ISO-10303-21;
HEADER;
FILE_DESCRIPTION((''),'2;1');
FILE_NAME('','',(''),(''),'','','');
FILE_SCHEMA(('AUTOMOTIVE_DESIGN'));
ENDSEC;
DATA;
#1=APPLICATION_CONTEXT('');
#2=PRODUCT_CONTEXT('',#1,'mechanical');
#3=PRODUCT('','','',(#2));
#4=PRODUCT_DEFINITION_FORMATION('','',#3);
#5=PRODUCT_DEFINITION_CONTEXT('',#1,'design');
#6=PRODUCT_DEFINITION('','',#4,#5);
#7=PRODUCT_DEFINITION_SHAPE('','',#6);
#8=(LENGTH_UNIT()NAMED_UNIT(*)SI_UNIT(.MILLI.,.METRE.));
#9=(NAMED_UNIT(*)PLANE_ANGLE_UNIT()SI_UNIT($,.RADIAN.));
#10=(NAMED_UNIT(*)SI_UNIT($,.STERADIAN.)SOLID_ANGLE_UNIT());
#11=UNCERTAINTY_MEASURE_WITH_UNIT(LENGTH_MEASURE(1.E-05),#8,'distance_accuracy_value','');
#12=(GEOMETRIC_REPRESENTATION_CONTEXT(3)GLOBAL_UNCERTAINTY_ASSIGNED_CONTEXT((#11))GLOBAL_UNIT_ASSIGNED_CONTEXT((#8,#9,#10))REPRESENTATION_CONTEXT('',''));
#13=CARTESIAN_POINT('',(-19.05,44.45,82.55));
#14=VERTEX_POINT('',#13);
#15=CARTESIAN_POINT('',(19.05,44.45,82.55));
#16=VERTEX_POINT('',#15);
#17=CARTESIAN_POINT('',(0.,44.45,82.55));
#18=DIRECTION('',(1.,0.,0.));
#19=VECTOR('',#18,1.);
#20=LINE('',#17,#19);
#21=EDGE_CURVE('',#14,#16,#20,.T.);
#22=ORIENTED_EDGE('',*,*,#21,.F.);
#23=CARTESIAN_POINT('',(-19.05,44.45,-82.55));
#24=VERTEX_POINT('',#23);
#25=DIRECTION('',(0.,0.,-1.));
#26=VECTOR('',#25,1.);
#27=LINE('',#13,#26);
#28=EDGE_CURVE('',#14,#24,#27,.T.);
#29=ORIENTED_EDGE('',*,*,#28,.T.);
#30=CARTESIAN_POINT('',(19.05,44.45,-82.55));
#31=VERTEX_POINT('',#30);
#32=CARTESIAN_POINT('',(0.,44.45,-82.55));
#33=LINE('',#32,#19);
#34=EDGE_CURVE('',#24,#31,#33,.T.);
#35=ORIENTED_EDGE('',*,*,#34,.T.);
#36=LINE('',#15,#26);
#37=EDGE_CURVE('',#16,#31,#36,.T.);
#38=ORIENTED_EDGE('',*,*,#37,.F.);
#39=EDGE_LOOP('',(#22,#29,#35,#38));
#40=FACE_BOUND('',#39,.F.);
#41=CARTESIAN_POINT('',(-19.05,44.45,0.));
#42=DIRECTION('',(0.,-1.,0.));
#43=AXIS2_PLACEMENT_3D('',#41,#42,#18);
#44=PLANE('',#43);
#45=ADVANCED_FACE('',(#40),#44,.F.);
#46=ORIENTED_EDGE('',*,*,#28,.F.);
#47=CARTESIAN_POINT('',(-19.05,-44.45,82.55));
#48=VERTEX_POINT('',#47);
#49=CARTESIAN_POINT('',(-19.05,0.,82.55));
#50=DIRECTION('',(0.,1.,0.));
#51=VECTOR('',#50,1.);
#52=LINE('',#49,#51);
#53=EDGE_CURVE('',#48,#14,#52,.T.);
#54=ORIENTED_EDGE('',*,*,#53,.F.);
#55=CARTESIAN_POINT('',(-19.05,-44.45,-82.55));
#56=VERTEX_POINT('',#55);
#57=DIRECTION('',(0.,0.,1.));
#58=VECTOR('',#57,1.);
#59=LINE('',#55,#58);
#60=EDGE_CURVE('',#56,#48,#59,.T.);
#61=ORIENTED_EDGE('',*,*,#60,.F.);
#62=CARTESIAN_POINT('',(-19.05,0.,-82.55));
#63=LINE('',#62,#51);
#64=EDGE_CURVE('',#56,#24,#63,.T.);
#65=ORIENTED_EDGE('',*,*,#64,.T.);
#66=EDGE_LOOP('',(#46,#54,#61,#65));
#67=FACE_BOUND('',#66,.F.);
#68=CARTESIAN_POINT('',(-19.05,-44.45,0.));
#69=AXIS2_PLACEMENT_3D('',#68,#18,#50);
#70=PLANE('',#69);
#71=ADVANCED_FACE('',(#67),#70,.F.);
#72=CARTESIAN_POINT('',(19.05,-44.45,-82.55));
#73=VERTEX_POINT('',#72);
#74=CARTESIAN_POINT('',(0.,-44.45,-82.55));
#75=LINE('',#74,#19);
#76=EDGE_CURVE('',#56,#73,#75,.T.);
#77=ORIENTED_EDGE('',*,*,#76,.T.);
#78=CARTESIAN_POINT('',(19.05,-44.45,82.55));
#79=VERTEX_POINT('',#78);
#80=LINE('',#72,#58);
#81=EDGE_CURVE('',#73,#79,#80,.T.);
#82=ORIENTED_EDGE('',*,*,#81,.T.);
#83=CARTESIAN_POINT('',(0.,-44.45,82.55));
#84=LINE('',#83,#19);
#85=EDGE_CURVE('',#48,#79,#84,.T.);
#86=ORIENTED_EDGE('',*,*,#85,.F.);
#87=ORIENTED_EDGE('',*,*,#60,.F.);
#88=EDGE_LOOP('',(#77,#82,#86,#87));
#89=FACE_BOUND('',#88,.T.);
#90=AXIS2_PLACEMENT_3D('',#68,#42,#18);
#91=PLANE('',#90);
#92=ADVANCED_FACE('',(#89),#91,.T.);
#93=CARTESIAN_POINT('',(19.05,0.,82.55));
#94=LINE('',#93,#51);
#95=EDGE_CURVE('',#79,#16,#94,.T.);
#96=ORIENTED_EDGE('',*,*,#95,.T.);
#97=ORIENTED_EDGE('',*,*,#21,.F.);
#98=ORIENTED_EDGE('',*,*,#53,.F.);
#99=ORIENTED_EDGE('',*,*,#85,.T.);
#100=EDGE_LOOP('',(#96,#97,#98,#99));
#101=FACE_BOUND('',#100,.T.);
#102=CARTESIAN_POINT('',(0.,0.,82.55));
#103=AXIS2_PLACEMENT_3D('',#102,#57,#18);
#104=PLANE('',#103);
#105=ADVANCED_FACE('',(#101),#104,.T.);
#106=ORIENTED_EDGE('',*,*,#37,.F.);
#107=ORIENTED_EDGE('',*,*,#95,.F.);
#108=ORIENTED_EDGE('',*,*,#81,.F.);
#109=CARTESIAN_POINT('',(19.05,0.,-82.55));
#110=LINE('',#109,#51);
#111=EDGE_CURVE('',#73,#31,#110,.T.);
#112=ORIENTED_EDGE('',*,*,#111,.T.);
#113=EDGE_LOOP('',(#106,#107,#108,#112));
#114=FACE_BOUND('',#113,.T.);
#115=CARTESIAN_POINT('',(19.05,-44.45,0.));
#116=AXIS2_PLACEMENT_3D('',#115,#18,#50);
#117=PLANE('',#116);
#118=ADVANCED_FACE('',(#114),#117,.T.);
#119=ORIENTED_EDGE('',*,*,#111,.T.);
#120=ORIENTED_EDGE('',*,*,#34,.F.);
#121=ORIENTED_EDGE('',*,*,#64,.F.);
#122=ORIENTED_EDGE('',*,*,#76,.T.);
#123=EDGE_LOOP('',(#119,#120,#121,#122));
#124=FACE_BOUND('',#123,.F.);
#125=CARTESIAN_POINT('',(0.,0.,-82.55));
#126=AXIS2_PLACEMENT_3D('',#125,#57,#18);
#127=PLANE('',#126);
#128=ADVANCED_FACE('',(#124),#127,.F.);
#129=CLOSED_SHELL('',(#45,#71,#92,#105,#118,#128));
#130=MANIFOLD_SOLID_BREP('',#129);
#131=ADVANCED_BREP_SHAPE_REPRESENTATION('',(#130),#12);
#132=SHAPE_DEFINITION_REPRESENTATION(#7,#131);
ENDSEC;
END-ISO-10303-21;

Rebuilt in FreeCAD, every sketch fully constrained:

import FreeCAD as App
import Part
import Sketcher
Q = App.Units.Quantity

doc = App.newDocument("Part")
body = doc.addObject("PartDesign::Body", "Body")

sketch1 = body.newObject("Sketcher::SketchObject", "Sketch")
sketch1.AttachmentSupport = (doc.getObject("XY_Plane"), [""])
sketch1.MapMode = "FlatFace"
sketch1.addGeometry([
    Part.LineSegment(App.Vector(-19, 44, 0), App.Vector(-19, -44, 0)),
    Part.LineSegment(App.Vector(-19, -44, 0), App.Vector(19, -44, 0)),
    Part.LineSegment(App.Vector(19, -44, 0), App.Vector(19, 44, 0)),
    Part.LineSegment(App.Vector(19, 44, 0), App.Vector(-19, 44, 0)),
], False)
sketch1.addConstraint([
    Sketcher.Constraint("Coincident", 0, 2, 1, 1),
    Sketcher.Constraint("Coincident", 1, 2, 2, 1),
    Sketcher.Constraint("Coincident", 2, 2, 3, 1),
    Sketcher.Constraint("Coincident", 3, 2, 0, 1),
    Sketcher.Constraint("Vertical", 0),
    Sketcher.Constraint("Horizontal", 1),
    Sketcher.Constraint("Vertical", 2),
    Sketcher.Constraint("Horizontal", 3),
    Sketcher.Constraint("Symmetric", 0, 2, 2, 2, -1, 1),
    Sketcher.Constraint("DistanceX", 1, 1, 1, 2, Q("1.5 in")),
    Sketcher.Constraint("DistanceY", 0, 2, 0, 1, Q("3.5 in")),
])
pad1 = body.newObject("PartDesign::Pad", "Pad")
pad1.Profile = sketch1
pad1.Length = Q("6.5 in")
pad1.Midplane = True

doc.recompute()
